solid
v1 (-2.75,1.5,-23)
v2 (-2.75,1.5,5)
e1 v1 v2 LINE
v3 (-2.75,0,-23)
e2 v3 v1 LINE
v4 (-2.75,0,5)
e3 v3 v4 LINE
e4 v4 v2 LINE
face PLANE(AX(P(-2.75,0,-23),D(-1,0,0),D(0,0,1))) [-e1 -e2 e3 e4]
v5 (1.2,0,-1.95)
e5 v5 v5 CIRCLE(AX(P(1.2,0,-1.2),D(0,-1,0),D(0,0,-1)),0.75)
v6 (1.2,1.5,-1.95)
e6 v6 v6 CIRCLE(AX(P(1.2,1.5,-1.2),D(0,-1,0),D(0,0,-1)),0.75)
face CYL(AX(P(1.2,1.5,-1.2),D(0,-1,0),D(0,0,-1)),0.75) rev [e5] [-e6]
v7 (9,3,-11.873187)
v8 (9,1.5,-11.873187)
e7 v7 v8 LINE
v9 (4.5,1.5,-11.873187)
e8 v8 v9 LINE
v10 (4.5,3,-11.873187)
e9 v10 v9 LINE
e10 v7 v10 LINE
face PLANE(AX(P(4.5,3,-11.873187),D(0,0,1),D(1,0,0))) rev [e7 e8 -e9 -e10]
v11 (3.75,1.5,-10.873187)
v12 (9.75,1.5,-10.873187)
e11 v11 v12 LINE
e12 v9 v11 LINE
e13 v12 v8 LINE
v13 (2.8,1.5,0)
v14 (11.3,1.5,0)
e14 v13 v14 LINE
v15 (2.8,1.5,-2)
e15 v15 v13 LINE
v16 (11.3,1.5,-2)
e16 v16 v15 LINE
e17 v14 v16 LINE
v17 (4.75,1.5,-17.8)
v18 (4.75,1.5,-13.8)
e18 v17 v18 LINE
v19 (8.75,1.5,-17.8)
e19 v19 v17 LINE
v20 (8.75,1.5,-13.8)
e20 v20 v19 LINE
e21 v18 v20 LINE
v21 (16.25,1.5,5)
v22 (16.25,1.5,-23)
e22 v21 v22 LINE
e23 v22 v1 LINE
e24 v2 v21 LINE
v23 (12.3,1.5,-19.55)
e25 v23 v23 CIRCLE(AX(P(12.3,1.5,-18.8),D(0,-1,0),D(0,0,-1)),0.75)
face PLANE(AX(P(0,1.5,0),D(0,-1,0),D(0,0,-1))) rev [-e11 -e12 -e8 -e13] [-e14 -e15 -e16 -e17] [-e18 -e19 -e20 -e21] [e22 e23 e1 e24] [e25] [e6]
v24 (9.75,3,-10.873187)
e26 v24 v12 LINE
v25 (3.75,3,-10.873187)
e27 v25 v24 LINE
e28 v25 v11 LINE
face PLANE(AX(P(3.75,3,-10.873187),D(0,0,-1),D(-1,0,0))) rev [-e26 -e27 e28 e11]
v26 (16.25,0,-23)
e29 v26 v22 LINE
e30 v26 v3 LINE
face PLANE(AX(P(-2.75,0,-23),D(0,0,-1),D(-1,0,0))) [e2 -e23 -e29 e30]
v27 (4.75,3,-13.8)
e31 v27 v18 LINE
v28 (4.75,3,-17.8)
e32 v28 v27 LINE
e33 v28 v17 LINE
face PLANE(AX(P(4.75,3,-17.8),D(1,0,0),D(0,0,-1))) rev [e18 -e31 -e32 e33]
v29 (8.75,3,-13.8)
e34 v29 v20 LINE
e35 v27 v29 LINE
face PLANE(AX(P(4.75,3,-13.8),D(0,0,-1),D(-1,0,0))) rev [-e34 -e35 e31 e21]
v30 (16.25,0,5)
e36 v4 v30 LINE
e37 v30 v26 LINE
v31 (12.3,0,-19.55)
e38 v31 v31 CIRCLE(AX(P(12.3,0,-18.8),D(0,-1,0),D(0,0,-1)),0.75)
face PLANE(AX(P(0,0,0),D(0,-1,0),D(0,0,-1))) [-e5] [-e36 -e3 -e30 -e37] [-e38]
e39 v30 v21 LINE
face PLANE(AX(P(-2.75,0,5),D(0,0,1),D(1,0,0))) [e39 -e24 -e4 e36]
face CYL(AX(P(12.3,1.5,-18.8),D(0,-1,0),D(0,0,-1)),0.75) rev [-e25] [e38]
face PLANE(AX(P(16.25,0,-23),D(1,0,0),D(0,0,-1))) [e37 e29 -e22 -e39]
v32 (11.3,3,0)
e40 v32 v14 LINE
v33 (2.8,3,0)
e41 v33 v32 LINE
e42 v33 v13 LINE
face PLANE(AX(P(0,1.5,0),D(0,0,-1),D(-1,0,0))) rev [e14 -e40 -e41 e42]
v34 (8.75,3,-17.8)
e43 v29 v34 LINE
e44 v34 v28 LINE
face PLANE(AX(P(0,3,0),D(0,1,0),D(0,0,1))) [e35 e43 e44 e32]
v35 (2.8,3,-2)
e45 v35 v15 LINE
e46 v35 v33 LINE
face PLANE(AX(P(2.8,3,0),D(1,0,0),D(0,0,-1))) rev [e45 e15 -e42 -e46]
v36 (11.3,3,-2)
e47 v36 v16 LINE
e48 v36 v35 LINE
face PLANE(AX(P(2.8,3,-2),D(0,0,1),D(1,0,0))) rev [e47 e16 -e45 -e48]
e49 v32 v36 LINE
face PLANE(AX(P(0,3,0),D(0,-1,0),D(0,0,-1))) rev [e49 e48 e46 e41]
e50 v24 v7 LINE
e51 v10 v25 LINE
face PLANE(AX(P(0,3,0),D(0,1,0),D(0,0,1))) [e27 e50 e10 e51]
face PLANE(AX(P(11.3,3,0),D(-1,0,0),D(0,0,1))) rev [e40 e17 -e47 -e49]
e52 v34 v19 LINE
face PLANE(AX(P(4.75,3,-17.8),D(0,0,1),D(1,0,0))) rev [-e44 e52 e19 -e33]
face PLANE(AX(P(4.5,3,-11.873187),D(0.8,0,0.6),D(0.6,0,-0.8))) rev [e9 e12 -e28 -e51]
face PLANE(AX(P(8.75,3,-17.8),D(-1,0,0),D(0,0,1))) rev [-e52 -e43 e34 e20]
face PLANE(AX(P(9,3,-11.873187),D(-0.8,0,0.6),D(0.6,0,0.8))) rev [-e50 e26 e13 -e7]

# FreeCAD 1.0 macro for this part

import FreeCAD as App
import Part
import Sketcher

V = App.Vector

doc = App.newDocument("Part")
body = doc.addObject("PartDesign::Body", "Body")

sketch1 = doc.addObject("Sketcher::SketchObject", "Sketch")
body.addObject(sketch1)
sketch1.AttachmentSupport = (doc.XZ_Plane, [""])
sketch1.MapMode = "FlatFace"
sketch1.addGeometry([
    Part.LineSegment(V(0, -20, 0), V(0, 0, 0)),
    Part.LineSegment(V(0, 0, 0), V(14, 0, 0)),
    Part.LineSegment(V(14, 0, 0), V(14, -20, 0)),
    Part.LineSegment(V(14, -20, 0), V(0, -20, 0)),
], False)
sketch1.addConstraint([
    Sketcher.Constraint("Coincident", 0, 2, 1, 1),
    Sketcher.Constraint("Coincident", 1, 2, 2, 1),
    Sketcher.Constraint("Coincident", 2, 2, 3, 1),
    Sketcher.Constraint("Coincident", 3, 2, 0, 1),
    Sketcher.Constraint("Vertical", 0),
    Sketcher.Constraint("Horizontal", 1),
    Sketcher.Constraint("Vertical", 2),
    Sketcher.Constraint("Horizontal", 3),
    Sketcher.Constraint("Coincident", 0, 2, -1, 1),
    Sketcher.Constraint("DistanceY", 0, 1, 0, 2, 20.0),
    Sketcher.Constraint("DistanceX", 1, 1, 1, 2, 13.5),
])
pad1 = doc.addObject("PartDesign::Pad", "Pad")
body.addObject(pad1)
pad1.Profile = sketch1
pad1.Length = 1.5
pad1.Reversed = True

sketch2 = doc.addObject("Sketcher::SketchObject", "Sketch001")
body.addObject(sketch2)
sketch2.AttachmentSupport = (doc.XZ_Plane, [""])
sketch2.MapMode = "FlatFace"
sketch2.AttachmentOffset = App.Placement(V(0, 0, -1.5), App.Rotation())
sketch2.addGeometry([
    Part.LineSegment(V(4.8, -17.8, 0), V(4.8, -13.8, 0)),
    Part.LineSegment(V(4.8, -13.8, 0), V(8.8, -13.8, 0)),
    Part.LineSegment(V(8.8, -13.8, 0), V(8.8, -17.8, 0)),
    Part.LineSegment(V(8.8, -17.8, 0), V(4.8, -17.8, 0)),
    Part.LineSegment(V(9, -11.9, 0), V(4.5, -11.9, 0)),
    Part.LineSegment(V(4.5, -11.9, 0), V(3.8, -10.9, 0)),
    Part.LineSegment(V(3.8, -10.9, 0), V(9.8, -10.9, 0)),
    Part.LineSegment(V(9.8, -10.9, 0), V(9, -11.9, 0)),
], False)
sketch2.addConstraint([
    Sketcher.Constraint("Coincident", 0, 2, 1, 1),
    Sketcher.Constraint("Coincident", 1, 2, 2, 1),
    Sketcher.Constraint("Coincident", 2, 2, 3, 1),
    Sketcher.Constraint("Coincident", 3, 2, 0, 1),
    Sketcher.Constraint("Coincident", 4, 2, 5, 1),
    Sketcher.Constraint("Coincident", 5, 2, 6, 1),
    Sketcher.Constraint("Coincident", 6, 2, 7, 1),
    Sketcher.Constraint("Coincident", 7, 2, 4, 1),
    Sketcher.Constraint("Vertical", 0),
    Sketcher.Constraint("Horizontal", 1),
    Sketcher.Constraint("Vertical", 2),
    Sketcher.Constraint("Horizontal", 3),
    Sketcher.Constraint("Horizontal", 4),
    Sketcher.Constraint("Horizontal", 6),
    Sketcher.Constraint("Equal", 3, 0),
    Sketcher.Constraint("Equal", 5, 7),
    Sketcher.Constraint("DistanceX", 1, 1, 1, 2, 4.0),
    Sketcher.Constraint("DistanceX", 6, 1, 6, 2, 6.0),
    Sketcher.Constraint("DistanceX", 4, 2, 4, 1, 4.5),
    Sketcher.Constraint("DistanceX", -1, 1, 7, 2, 9.0),
    Sketcher.Constraint("DistanceY", 4, 2, 5, 2, 1.0),
    Sketcher.Constraint("DistanceX", 5, 2, 0, 2, 1.0),
    Sketcher.Constraint("DistanceY", 0, 2, -1, 1, 13.8),
    Sketcher.Constraint("DistanceY", 4, 2, -1, 1, 11.873187),
])
pad2 = doc.addObject("PartDesign::Pad", "Pad001")
body.addObject(pad2)
pad2.Profile = sketch2
pad2.Length = 1.5
pad2.Reversed = True

sketch3 = doc.addObject("Sketcher::SketchObject", "Sketch002")
body.addObject(sketch3)
sketch3.AttachmentSupport = (doc.XZ_Plane, [""])
sketch3.MapMode = "FlatFace"
sketch3.addGeometry([
    Part.Circle(V(12.3, -18.8, 0), V(0, 0, 1), 0.8),
    Part.Circle(V(1.2, -1.2, 0), V(0, 0, 1), 0.8),
], False)
sketch3.addConstraint([
    Sketcher.Constraint("Equal", 0, 1),
    Sketcher.Constraint("Diameter", 0, 1.5),
    Sketcher.Constraint("DistanceX", -1, 1, 0, 3, 12.3),
    Sketcher.Constraint("DistanceY", 0, 3, -1, 1, 18.8),
    Sketcher.Constraint("DistanceX", -1, 1, 1, 3, 1.2),
    Sketcher.Constraint("DistanceY", 1, 3, -1, 1, 1.2),
])
pocket1 = doc.addObject("PartDesign::Pocket", "Pocket")
body.addObject(pocket1)
pocket1.Profile = sketch3
pocket1.Length = 1.5

sketch4 = doc.addObject("Sketcher::SketchObject", "Sketch003")
body.addObject(sketch4)
sketch4.AttachmentSupport = (doc.XZ_Plane, [""])
sketch4.MapMode = "FlatFace"
sketch4.AttachmentOffset = App.Placement(V(0, 0, -1.5), App.Rotation())
sketch4.addGeometry([
    Part.LineSegment(V(2.8, -2, 0), V(2.8, 0, 0)),
    Part.LineSegment(V(2.8, 0, 0), V(11.3, 0, 0)),
    Part.LineSegment(V(11.3, 0, 0), V(11.3, -2, 0)),
    Part.LineSegment(V(11.3, -2, 0), V(2.8, -2, 0)),
], False)
sketch4.addConstraint([
    Sketcher.Constraint("Coincident", 0, 2, 1, 1),
    Sketcher.Constraint("Coincident", 1, 2, 2, 1),
    Sketcher.Constraint("Coincident", 2, 2, 3, 1),
    Sketcher.Constraint("Coincident", 3, 2, 0, 1),
    Sketcher.Constraint("Vertical", 0),
    Sketcher.Constraint("Horizontal", 1),
    Sketcher.Constraint("Vertical", 2),
    Sketcher.Constraint("Horizontal", 3),
    Sketcher.Constraint("PointOnObject", 0, 2, -1),
    Sketcher.Constraint("DistanceY", 0, 1, 0, 2, 2.0),
    Sketcher.Constraint("DistanceX", 1, 1, 1, 2, 8.5),
    Sketcher.Constraint("DistanceX", -1, 1, 0, 2, 2.8),
])
pad3 = doc.addObject("PartDesign::Pad", "Pad002")
body.addObject(pad3)
pad3.Profile = sketch4
pad3.Length = 1.5
pad3.Reversed = True

sketch5 = doc.addObject("Sketcher::SketchObject", "Sketch004")
body.addObject(sketch5)
sketch5.AttachmentSupport = (doc.XZ_Plane, [""])
sketch5.MapMode = "FlatFace"
sketch5.AttachmentOffset = App.Placement(V(0, 0, -1.5), App.Rotation())
sketch5.addGeometry([
    Part.LineSegment(V(-3, -23, 0), V(-3, 5, 0)),
    Part.LineSegment(V(-3, 5, 0), V(16, 5, 0)),
    Part.LineSegment(V(16, 5, 0), V(16, -23, 0)),
    Part.LineSegment(V(16, -23, 0), V(-3, -23, 0)),
    Part.LineSegment(V(14, 0, 0), V(0, 0, 0)),
    Part.LineSegment(V(0, 0, 0), V(0, -20, 0)),
    Part.LineSegment(V(0, -20, 0), V(14, -20, 0)),
    Part.LineSegment(V(14, -20, 0), V(14, 0, 0)),
], False)
sketch5.addConstraint([
    Sketcher.Constraint("Coincident", 0, 2, 1, 1),
    Sketcher.Constraint("Coincident", 1, 2, 2, 1),
    Sketcher.Constraint("Coincident", 2, 2, 3, 1),
    Sketcher.Constraint("Coincident", 3, 2, 0, 1),
    Sketcher.Constraint("Coincident", 4, 2, 5, 1),
    Sketcher.Constraint("Coincident", 5, 2, 6, 1),
    Sketcher.Constraint("Coincident", 6, 2, 7, 1),
    Sketcher.Constraint("Coincident", 7, 2, 4, 1),
    Sketcher.Constraint("Vertical", 0),
    Sketcher.Constraint("Horizontal", 1),
    Sketcher.Constraint("Vertical", 2),
    Sketcher.Constraint("Horizontal", 3),
    Sketcher.Constraint("Horizontal", 4),
    Sketcher.Constraint("Vertical", 5),
    Sketcher.Constraint("Horizontal", 6),
    Sketcher.Constraint("Vertical", 7),
    Sketcher.Constraint("Coincident", 4, 2, -1, 1),
    Sketcher.Constraint("DistanceX", 1, 1, 1, 2, 19.0),
    Sketcher.Constraint("DistanceY", 0, 1, 0, 2, 28.0),
    Sketcher.Constraint("DistanceY", 5, 2, 5, 1, 20.0),
    Sketcher.Constraint("DistanceX", 4, 2, 4, 1, 13.5),
    Sketcher.Constraint("DistanceY", -1, 1, 0, 2, 5.0),
    Sketcher.Constraint("DistanceX", 0, 2, -1, 1, 2.75),
])
pad4 = doc.addObject("PartDesign::Pad", "Pad003")
body.addObject(pad4)
pad4.Profile = sketch5
pad4.Length = 1.5

doc.recompute()
